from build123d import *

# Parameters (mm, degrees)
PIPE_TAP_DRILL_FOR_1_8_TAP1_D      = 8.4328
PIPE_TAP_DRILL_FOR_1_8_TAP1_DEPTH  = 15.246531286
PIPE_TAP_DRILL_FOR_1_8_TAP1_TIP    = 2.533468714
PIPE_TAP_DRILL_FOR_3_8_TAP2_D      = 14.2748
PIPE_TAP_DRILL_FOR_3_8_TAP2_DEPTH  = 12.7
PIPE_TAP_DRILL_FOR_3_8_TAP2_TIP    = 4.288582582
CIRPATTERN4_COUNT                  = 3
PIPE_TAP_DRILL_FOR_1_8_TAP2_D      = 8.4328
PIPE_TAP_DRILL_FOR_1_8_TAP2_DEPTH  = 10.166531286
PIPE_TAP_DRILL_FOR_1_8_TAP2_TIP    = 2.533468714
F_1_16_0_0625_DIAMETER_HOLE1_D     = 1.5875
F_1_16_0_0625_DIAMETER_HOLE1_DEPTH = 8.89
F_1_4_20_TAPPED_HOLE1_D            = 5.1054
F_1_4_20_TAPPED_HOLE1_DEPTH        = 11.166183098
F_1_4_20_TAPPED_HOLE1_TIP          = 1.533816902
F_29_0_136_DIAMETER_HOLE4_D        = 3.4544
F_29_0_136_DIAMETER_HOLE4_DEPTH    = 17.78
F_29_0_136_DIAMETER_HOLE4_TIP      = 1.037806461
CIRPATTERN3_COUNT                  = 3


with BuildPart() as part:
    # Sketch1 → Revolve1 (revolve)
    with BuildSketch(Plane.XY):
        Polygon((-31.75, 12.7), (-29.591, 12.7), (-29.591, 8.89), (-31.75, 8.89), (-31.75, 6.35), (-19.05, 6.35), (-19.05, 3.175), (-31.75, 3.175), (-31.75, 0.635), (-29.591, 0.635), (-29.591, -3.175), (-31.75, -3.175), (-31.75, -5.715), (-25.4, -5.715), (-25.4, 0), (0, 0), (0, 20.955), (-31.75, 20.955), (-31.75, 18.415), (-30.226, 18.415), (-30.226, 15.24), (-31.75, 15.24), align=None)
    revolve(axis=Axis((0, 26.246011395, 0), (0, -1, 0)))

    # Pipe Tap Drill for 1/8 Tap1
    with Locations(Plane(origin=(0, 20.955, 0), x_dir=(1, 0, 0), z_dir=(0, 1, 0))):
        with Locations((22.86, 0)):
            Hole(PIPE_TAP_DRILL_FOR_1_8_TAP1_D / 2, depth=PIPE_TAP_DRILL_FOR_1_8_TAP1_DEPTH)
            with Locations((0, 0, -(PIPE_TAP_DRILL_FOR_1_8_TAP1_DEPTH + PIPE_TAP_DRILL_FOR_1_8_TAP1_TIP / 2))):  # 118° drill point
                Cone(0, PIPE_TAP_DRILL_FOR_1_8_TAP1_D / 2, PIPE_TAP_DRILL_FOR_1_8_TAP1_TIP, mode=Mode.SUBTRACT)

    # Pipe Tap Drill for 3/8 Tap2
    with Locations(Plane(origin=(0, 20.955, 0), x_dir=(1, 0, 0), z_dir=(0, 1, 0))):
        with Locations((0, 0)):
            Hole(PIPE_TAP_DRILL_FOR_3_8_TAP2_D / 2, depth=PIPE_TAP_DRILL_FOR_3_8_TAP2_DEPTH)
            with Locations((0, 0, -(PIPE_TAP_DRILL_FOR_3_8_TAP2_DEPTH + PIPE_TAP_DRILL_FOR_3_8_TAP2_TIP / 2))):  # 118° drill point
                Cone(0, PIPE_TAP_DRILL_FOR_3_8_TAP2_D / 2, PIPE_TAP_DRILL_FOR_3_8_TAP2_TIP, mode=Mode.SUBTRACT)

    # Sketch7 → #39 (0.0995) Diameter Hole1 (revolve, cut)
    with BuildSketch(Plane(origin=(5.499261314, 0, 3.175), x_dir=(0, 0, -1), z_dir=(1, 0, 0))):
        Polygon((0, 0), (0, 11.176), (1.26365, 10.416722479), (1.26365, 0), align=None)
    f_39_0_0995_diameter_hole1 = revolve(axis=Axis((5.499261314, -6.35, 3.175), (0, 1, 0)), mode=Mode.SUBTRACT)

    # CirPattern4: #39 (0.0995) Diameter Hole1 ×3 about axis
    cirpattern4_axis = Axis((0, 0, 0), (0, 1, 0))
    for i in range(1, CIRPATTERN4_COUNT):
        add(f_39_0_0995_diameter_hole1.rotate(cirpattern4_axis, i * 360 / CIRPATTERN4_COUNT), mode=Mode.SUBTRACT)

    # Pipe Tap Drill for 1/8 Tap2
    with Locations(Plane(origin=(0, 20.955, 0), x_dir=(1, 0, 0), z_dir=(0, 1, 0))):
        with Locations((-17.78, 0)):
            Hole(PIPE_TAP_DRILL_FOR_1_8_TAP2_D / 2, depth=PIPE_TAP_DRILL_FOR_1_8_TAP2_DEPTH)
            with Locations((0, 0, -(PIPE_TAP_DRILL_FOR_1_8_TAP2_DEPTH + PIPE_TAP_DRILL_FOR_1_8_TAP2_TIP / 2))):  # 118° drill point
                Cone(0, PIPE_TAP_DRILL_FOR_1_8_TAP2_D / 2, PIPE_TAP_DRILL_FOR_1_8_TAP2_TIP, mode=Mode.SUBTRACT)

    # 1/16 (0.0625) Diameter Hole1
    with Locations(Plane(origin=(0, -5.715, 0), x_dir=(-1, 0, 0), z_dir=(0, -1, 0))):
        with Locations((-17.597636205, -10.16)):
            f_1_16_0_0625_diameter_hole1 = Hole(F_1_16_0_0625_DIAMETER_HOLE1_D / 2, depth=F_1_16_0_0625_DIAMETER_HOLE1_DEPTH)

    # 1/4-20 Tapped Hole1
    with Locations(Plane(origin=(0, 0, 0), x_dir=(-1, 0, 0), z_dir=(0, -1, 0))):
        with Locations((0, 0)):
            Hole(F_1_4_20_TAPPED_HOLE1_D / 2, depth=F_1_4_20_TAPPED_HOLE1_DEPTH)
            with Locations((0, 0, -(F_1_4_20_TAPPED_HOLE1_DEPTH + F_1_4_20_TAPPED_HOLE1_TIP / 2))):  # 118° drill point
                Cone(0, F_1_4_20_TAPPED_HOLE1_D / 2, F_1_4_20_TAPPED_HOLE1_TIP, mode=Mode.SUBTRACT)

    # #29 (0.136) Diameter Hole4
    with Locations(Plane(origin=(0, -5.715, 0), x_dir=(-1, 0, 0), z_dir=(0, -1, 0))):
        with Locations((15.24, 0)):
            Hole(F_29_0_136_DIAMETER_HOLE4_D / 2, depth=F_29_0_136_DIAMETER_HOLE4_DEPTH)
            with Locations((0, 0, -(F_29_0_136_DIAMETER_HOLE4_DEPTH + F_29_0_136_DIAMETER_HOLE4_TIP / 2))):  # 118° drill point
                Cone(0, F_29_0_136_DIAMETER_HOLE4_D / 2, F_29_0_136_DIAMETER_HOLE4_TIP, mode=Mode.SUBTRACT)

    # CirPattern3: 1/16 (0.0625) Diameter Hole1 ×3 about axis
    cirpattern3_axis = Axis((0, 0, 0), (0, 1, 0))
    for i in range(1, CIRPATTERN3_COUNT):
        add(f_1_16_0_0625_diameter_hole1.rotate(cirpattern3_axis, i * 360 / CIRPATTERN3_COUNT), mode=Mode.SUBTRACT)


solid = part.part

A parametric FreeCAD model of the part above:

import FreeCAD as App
import Part
import Sketcher

V = App.Vector
Q = App.Units.Quantity

doc = App.newDocument("Part")
body = doc.addObject("PartDesign::Body", "Body")

sketch1 = body.newObject("Sketcher::SketchObject", "Sketch")
sketch1.AttachmentSupport = (doc.getObject("XY_Plane"), [""])
sketch1.MapMode = "FlatFace"
sketch1.addGeometry([
    Part.LineSegment(V(-31.75, 12.7, 0), V(-29.591, 12.7, 0)),
    Part.LineSegment(V(-29.591, 12.7, 0), V(-29.591, 8.89, 0)),
    Part.LineSegment(V(-29.591, 8.89, 0), V(-31.75, 8.89, 0)),
    Part.LineSegment(V(-31.75, 8.89, 0), V(-31.75, 6.35, 0)),
    Part.LineSegment(V(-31.75, 6.35, 0), V(-19.05, 6.35, 0)),
    Part.LineSegment(V(-19.05, 6.35, 0), V(-19.05, 3.175, 0)),
    Part.LineSegment(V(-19.05, 3.175, 0), V(-31.75, 3.175, 0)),
    Part.LineSegment(V(-31.75, 3.175, 0), V(-31.75, 0.635, 0)),
    Part.LineSegment(V(-31.75, 0.635, 0), V(-29.591, 0.635, 0)),
    Part.LineSegment(V(-29.591, 0.635, 0), V(-29.591, -3.175, 0)),
    Part.LineSegment(V(-29.591, -3.175, 0), V(-31.75, -3.175, 0)),
    Part.LineSegment(V(-31.75, -3.175, 0), V(-31.75, -5.715, 0)),
    Part.LineSegment(V(-31.75, -5.715, 0), V(-25.4, -5.715, 0)),
    Part.LineSegment(V(-25.4, -5.715, 0), V(-25.4, 0, 0)),
    Part.LineSegment(V(-25.4, 0, 0), V(0, 0, 0)),
    Part.LineSegment(V(0, 0, 0), V(0, 20.955, 0)),
    Part.LineSegment(V(0, 20.955, 0), V(-31.75, 20.955, 0)),
    Part.LineSegment(V(-31.75, 20.955, 0), V(-31.75, 18.415, 0)),
    Part.LineSegment(V(-31.75, 18.415, 0), V(-30.226, 18.415, 0)),
    Part.LineSegment(V(-30.226, 18.415, 0), V(-30.226, 15.24, 0)),
    Part.LineSegment(V(-30.226, 15.24, 0), V(-31.75, 15.24, 0)),
    Part.LineSegment(V(-31.75, 15.24, 0), V(-31.75, 12.7, 0)),
], False)
sketch1.addConstraint([
    Sketcher.Constraint("Coincident", 0, 2, 1, 1),
    Sketcher.Constraint("Coincident", 1, 2, 2, 1),
    Sketcher.Constraint("Coincident", 2, 2, 3, 1),
    Sketcher.Constraint("Coincident", 3, 2, 4, 1),
    Sketcher.Constraint("Coincident", 4, 2, 5, 1),
    Sketcher.Constraint("Coincident", 5, 2, 6, 1),
    Sketcher.Constraint("Coincident", 6, 2, 7, 1),
    Sketcher.Constraint("Coincident", 7, 2, 8, 1),
    Sketcher.Constraint("Coincident", 8, 2, 9, 1),
    Sketcher.Constraint("Coincident", 9, 2, 10, 1),
    Sketcher.Constraint("Coincident", 10, 2, 11, 1),
    Sketcher.Constraint("Coincident", 11, 2, 12, 1),
    Sketcher.Constraint("Coincident", 12, 2, 13, 1),
    Sketcher.Constraint("Coincident", 13, 2, 14, 1),
    Sketcher.Constraint("Coincident", 14, 2, 15, 1),
    Sketcher.Constraint("Coincident", 15, 2, 16, 1),
    Sketcher.Constraint("Coincident", 16, 2, 17, 1),
    Sketcher.Constraint("Coincident", 17, 2, 18, 1),
    Sketcher.Constraint("Coincident", 18, 2, 19, 1),
    Sketcher.Constraint("Coincident", 19, 2, 20, 1),
    Sketcher.Constraint("Coincident", 20, 2, 21, 1),
    Sketcher.Constraint("Coincident", 21, 2, 0, 1),
    Sketcher.Constraint("Horizontal", 0),
    Sketcher.Constraint("Vertical", 1),
    Sketcher.Constraint("Horizontal", 2),
    Sketcher.Constraint("Vertical", 3),
    Sketcher.Constraint("Horizontal", 4),
    Sketcher.Constraint("Vertical", 5),
    Sketcher.Constraint("Horizontal", 6),
    Sketcher.Constraint("Vertical", 7),
    Sketcher.Constraint("Horizontal", 8),
    Sketcher.Constraint("Vertical", 9),
    Sketcher.Constraint("Horizontal", 10),
    Sketcher.Constraint("Vertical", 11),
    Sketcher.Constraint("Horizontal", 12),
    Sketcher.Constraint("Vertical", 13),
    Sketcher.Constraint("Horizontal", 14),
    Sketcher.Constraint("Vertical", 15),
    Sketcher.Constraint("Horizontal", 16),
    Sketcher.Constraint("Vertical", 17),
    Sketcher.Constraint("Horizontal", 18),
    Sketcher.Constraint("Vertical", 19),
    Sketcher.Constraint("Horizontal", 20),
    Sketcher.Constraint("Vertical", 21),
    Sketcher.Constraint("Coincident", 14, 2, -1, 1),
    Sketcher.Constraint("Symmetric", 6, 2, 10, 2, -1),
    Sketcher.Constraint("Vertical", 3, 2, 6, 2),
    Sketcher.Constraint("Vertical", 1, 2, 8, 2),
    Sketcher.Constraint("Vertical", 11, 2, 16, 2),
    Sketcher.Constraint("Vertical", 17, 2, 20, 2),
    Sketcher.Constraint("Equal", 3, 7),
    Sketcher.Constraint("Equal", 1, 9),
    Sketcher.Constraint("Equal", 7, 11),
    Sketcher.Constraint("Equal", 11, 17),
    Sketcher.Constraint("Equal", 5, 19),
    Sketcher.Constraint("Equal", 17, 21),
    Sketcher.Constraint("DistanceX", 14, 1, 14, 2, Q("1 in")),
    Sketcher.Constraint("DistanceX", 4, 1, 4, 2, Q("0.5 in")),
    Sketcher.Constraint("DistanceY", 3, 2, 3, 1, Q("0.1 in")),
    Sketcher.Constraint("DistanceX", 12, 1, 12, 2, Q("0.25 in")),
    Sketcher.Constraint("DistanceX", 18, 1, 18, 2, Q("0.06 in")),
    Sketcher.Constraint("DistanceY", 1, 2, 1, 1, Q("0.15 in")),
    Sketcher.Constraint("DistanceY", -1, 1, 0, 2, Q("0.5 in")),
    Sketcher.Constraint("DistanceX", 0, 1, 0, 2, Q("0.085 in")),
])
revolution = body.newObject("PartDesign::Revolution", "Revolution")
revolution.Profile = sketch1
revolution.ReferenceAxis = (sketch1, ["V_Axis"])
revolution.Angle = 360

sketch2 = body.newObject("Sketcher::SketchObject", "Sketch001")
sketch2.AttachmentSupport = (doc.getObject("XZ_Plane"), [""])
sketch2.MapMode = "FlatFace"
sketch2.AttachmentOffset = App.Placement(V(0, 0, -0.825 * 25.4), App.Rotation())
sketch2.addGeometry(Part.Circle(V(22.86, 0, 0), V(0, 0, 1), 4.2164), False)
sketch2.addConstraint([
    Sketcher.Constraint("PointOnObject", 0, 3, -1),
    Sketcher.Constraint("Diameter", 0, Q("0.332 in")),
    Sketcher.Constraint("DistanceX", -1, 1, 0, 3, Q("0.9 in")),
])
doc.recompute()
hole = body.newObject("PartDesign::Hole", "Hole")
hole.Profile = sketch2
hole.ThreadType = "None"
hole.Diameter = Q("0.332 in")
hole.DepthType = "Dimension"
hole.Depth = 15.246531
hole.DrillPoint = "Angled"
hole.DrillPointAngle = 118
hole.Reversed = True

sketch3 = body.newObject("Sketcher::SketchObject", "Sketch002")
sketch3.AttachmentSupport = (doc.getObject("XZ_Plane"), [""])
sketch3.MapMode = "FlatFace"
sketch3.AttachmentOffset = App.Placement(V(0, 0, -0.825 * 25.4), App.Rotation())
sketch3.addGeometry(Part.Circle(V(0, 0, 0), V(0, 0, 1), 7.1374), False)
sketch3.addConstraint([
    Sketcher.Constraint("Coincident", 0, 3, -1, 1),
    Sketcher.Constraint("Diameter", 0, Q("0.562 in")),
])
doc.recompute()
hole2 = body.newObject("PartDesign::Hole", "Hole001")
hole2.Profile = sketch3
hole2.ThreadType = "None"
hole2.Diameter = Q("0.562 in")
hole2.DepthType = "Dimension"
hole2.Depth = Q("0.5 in")
hole2.DrillPoint = "Angled"
hole2.DrillPointAngle = 118
hole2.Reversed = True

sketch4 = body.newObject("Sketcher::SketchObject", "Sketch003")
sketch4.AttachmentSupport = (doc.getObject("YZ_Plane"), [""])
sketch4.MapMode = "FlatFace"
sketch4.AttachmentOffset = App.Placement(V(0, 0, 5.499261), App.Rotation())
sketch4.addGeometry([
    Part.LineSegment(V(11.176, 3.175, 0), V(0, 3.175, 0)),
    Part.LineSegment(V(0, 3.175, 0), V(0, 1.91135, 0)),
    Part.LineSegment(V(0, 1.91135, 0), V(10.416722, 1.91135, 0)),
    Part.LineSegment(V(10.416722, 1.91135, 0), V(11.176, 3.175, 0)),
], False)
sketch4.addGeometry(Part.LineSegment(V(0, 3.175, 0), V(11.176, 3.175, 0)), True)
sketch4.addConstraint([
    Sketcher.Constraint("Coincident", 0, 2, 1, 1),
    Sketcher.Constraint("Coincident", 1, 2, 2, 1),
    Sketcher.Constraint("Coincident", 2, 2, 3, 1),
    Sketcher.Constraint("Coincident", 3, 2, 0, 1),
    Sketcher.Constraint("Horizontal", 0),
    Sketcher.Constraint("Vertical", 1),
    Sketcher.Constraint("Horizontal", 2),
    Sketcher.Constraint("Horizontal", 4),
    Sketcher.Constraint("Coincident", 4, 1, 0, 2),
    Sketcher.Constraint("PointOnObject", 0, 2, -2),
    Sketcher.Constraint("Equal", 0, 4),
    Sketcher.Constraint("Angle", 3, Q("59 deg")),
    Sketcher.Constraint("DistanceX", 0, 2, 0, 1, Q("0.44 in")),
    Sketcher.Constraint("DistanceY", -1, 1, 0, 2, Q("0.125 in")),
    Sketcher.Constraint("DistanceY", 1, 2, 1, 1, Q("1.26365 mm")),
])
groove = body.newObject("PartDesign::Groove", "Groove")
groove.Profile = sketch4
groove.ReferenceAxis = (sketch4, ["Axis0"])
groove.Angle = 360
doc.recompute()

polarpattern = body.newObject("PartDesign::PolarPattern", "PolarPattern")
polarpattern.Originals = [groove]
polarpattern.Axis = (doc.getObject("Y_Axis"), [""])
polarpattern.Angle = 360
polarpattern.Occurrences = 3
body.Tip = polarpattern

sketch5 = body.newObject("Sketcher::SketchObject", "Sketch004")
sketch5.AttachmentSupport = (doc.getObject("XZ_Plane"), [""])
sketch5.MapMode = "FlatFace"
sketch5.AttachmentOffset = App.Placement(V(0, 0, -0.825 * 25.4), App.Rotation())
sketch5.addGeometry(Part.Circle(V(-17.78, 0, 0), V(0, 0, 1), 4.2164), False)
sketch5.addConstraint([
    Sketcher.Constraint("PointOnObject", 0, 3, -1),
    Sketcher.Constraint("Diameter", 0, Q("0.332 in")),
    Sketcher.Constraint("DistanceX", 0, 3, -1, 1, Q("0.7 in")),
])
doc.recompute()
hole3 = body.newObject("PartDesign::Hole", "Hole002")
hole3.Profile = sketch5
hole3.ThreadType = "None"
hole3.Diameter = Q("0.332 in")
hole3.DepthType = "Dimension"
hole3.Depth = 10.166531
hole3.DrillPoint = "Angled"
hole3.DrillPointAngle = 118
hole3.Reversed = True

sketch6 = body.newObject("Sketcher::SketchObject", "Sketch005")
sketch6.AttachmentSupport = (doc.getObject("XZ_Plane"), [""])
sketch6.MapMode = "FlatFace"
sketch6.AttachmentOffset = App.Placement(V(0, 0, 0.225 * 25.4), App.Rotation())
sketch6.addGeometry(Part.Circle(V(17.597636, 10.16, 0), V(0, 0, 1), 0.79375), False)
sketch6.addConstraint([
    Sketcher.Constraint("Diameter", 0, Q("0.0625 in")),
    Sketcher.Constraint("DistanceY", -1, 1, 0, 3, Q("0.4 in")),
    Sketcher.Constraint("DistanceX", -1, 1, 0, 3, Q("17.597636 mm")),
])
doc.recompute()
hole4 = body.newObject("PartDesign::Hole", "Hole003")
hole4.Profile = sketch6
hole4.ThreadType = "None"
hole4.Diameter = Q("0.0625 in")
hole4.DepthType = "Dimension"
hole4.Depth = Q("0.35 in")
hole4.DrillPoint = "Flat"

sketch7 = body.newObject("Sketcher::SketchObject", "Sketch006")
sketch7.AttachmentSupport = (doc.getObject("XZ_Plane"), [""])
sketch7.MapMode = "FlatFace"
sketch7.addGeometry(Part.Circle(V(0, 0, 0), V(0, 0, 1), 2.5527), False)
sketch7.addConstraint([
    Sketcher.Constraint("Coincident", 0, 3, -1, 1),
    Sketcher.Constraint("Diameter", 0, Q("0.201 in")),
])
doc.recompute()
hole5 = body.newObject("PartDesign::Hole", "Hole004")
hole5.Profile = sketch7
hole5.ThreadType = "None"
hole5.Diameter = Q("0.201 in")
hole5.DepthType = "Dimension"
hole5.Depth = 11.166183
hole5.DrillPoint = "Angled"
hole5.DrillPointAngle = 118

sketch8 = body.newObject("Sketcher::SketchObject", "Sketch007")
sketch8.AttachmentSupport = (doc.getObject("XZ_Plane"), [""])
sketch8.MapMode = "FlatFace"
sketch8.AttachmentOffset = App.Placement(V(0, 0, 0.225 * 25.4), App.Rotation())
sketch8.addGeometry(Part.Circle(V(-15.24, 0, 0), V(0, 0, 1), 1.7272), False)
sketch8.addConstraint([
    Sketcher.Constraint("PointOnObject", 0, 3, -1),
    Sketcher.Constraint("Diameter", 0, Q("0.136 in")),
    Sketcher.Constraint("DistanceX", 0, 3, -1, 1, Q("0.6 in")),
])
doc.recompute()
hole6 = body.newObject("PartDesign::Hole", "Hole005")
hole6.Profile = sketch8
hole6.ThreadType = "None"
hole6.Diameter = Q("0.136 in")
hole6.DepthType = "Dimension"
hole6.Depth = Q("0.7 in")
hole6.DrillPoint = "Angled"
hole6.DrillPointAngle = 118
doc.recompute()

polarpattern2 = body.newObject("PartDesign::PolarPattern", "PolarPattern001")
polarpattern2.Originals = [hole4]
polarpattern2.Axis = (doc.getObject("Y_Axis"), [""])
polarpattern2.Angle = 360
polarpattern2.Occurrences = 3
body.Tip = polarpattern2

doc.recompute()
